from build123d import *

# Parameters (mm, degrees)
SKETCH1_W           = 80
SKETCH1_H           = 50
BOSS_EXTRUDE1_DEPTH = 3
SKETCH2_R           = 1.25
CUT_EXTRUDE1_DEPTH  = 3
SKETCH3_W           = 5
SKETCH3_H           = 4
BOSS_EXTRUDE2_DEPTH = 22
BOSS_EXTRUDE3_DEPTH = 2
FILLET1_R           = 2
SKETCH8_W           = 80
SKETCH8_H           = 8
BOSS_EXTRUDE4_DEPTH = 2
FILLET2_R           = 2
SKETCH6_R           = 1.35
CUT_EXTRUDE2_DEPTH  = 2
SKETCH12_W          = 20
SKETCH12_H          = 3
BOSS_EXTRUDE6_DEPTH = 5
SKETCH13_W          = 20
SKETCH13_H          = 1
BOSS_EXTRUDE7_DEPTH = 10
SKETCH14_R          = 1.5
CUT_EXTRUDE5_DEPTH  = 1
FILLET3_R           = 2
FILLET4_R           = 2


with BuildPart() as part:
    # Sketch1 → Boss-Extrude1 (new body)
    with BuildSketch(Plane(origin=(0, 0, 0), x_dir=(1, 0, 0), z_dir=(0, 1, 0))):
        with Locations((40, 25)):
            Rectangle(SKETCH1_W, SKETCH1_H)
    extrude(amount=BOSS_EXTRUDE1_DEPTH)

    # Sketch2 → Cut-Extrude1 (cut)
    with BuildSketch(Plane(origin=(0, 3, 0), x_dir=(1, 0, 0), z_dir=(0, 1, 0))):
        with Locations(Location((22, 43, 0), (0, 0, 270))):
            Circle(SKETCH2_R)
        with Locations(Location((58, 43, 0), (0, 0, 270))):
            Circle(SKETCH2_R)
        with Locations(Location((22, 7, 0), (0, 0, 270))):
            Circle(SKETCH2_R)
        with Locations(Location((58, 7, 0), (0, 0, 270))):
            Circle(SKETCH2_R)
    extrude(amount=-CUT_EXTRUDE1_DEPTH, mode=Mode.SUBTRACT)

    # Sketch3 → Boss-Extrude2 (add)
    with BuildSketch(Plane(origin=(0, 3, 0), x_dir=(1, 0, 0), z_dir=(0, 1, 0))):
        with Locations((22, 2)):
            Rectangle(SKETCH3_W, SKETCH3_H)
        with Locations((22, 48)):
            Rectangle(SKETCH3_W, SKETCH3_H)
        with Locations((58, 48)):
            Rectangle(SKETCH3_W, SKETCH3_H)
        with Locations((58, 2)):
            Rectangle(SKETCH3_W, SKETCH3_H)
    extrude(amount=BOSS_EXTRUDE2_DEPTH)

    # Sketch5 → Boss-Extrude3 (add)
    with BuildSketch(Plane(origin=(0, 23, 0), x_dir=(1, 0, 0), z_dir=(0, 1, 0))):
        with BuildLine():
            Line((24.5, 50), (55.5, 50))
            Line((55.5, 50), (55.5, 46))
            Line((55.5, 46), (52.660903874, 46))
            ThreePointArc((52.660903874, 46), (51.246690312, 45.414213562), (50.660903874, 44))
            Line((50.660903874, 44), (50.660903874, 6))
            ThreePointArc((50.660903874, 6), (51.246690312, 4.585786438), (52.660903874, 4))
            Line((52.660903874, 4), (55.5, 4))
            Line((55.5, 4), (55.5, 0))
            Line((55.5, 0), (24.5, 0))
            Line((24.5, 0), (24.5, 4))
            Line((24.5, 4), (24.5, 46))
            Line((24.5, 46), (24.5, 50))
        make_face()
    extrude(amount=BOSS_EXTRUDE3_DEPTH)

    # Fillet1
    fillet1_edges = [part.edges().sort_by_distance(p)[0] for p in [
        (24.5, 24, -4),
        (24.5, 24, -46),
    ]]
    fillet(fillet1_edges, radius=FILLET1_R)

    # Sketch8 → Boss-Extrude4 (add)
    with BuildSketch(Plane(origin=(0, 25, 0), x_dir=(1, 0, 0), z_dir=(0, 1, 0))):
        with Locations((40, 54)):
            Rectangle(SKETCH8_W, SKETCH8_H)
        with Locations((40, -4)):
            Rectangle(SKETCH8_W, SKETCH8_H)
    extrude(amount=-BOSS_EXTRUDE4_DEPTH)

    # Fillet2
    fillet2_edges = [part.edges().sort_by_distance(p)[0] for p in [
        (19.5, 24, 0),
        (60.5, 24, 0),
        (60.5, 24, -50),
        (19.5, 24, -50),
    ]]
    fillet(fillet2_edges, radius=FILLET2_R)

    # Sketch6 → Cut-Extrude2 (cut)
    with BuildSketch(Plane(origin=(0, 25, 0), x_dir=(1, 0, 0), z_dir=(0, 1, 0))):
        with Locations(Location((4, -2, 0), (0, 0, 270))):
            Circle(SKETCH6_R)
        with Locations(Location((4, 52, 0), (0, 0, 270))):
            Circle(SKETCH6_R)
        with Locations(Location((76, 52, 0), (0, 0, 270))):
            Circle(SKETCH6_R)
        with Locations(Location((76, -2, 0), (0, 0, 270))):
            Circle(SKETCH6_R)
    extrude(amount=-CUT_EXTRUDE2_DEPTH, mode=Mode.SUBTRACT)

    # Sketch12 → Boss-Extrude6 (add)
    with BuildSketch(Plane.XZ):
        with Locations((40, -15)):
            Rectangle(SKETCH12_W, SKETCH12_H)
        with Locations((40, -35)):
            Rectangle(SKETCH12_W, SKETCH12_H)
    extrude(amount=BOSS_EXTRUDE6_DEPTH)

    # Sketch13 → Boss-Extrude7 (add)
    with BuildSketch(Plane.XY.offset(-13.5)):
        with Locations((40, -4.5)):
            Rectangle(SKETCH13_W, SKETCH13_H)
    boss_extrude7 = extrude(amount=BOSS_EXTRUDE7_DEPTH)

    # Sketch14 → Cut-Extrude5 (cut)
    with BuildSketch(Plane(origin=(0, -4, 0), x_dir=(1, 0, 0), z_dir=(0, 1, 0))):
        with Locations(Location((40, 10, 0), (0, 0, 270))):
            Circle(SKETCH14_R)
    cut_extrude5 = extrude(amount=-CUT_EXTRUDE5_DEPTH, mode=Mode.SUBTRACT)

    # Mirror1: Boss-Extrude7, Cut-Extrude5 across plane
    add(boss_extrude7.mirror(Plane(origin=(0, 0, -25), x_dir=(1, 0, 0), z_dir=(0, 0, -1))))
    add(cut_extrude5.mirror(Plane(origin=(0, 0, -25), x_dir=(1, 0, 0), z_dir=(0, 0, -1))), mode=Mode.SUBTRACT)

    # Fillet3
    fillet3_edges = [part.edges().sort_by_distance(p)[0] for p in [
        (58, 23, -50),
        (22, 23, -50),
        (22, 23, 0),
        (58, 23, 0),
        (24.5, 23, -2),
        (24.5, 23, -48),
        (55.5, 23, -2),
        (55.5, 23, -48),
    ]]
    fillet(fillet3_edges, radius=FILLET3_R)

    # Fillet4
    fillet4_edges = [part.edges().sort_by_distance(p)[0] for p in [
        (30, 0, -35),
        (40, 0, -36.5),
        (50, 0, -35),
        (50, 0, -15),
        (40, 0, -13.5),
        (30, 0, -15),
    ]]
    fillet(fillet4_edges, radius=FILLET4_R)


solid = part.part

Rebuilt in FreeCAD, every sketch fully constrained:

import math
import FreeCAD as App
import Part
import Sketcher
from FreeCAD import Vector
Q = App.Units.Quantity


def edges_at(feature, points):
    """Names of the edges that pass closest to the given points."""
    edges = feature.Shape.Edges
    near = lambda p: min(range(len(edges)), key=lambda i: edges[i].distToShape(Part.Vertex(*p))[0])
    return sorted({f"Edge{near(p) + 1}" for p in points})

doc = App.newDocument("Part")
params = doc.addObject("Spreadsheet::Sheet", "Params")
for row, (alias, value) in enumerate([
    ("sketch1_width", "80 mm"),
    ("sketch1_height", "50 mm"),
    ("pad1_length", "3 mm"),
    ("sketch2_diameter", "2.5 mm"),
    ("pocket1_length", "3 mm"),
    ("sketch3_width", "5 mm"),
    ("sketch3_height", "4 mm"),
    ("pad2_length", "22 mm"),
    ("sketch4_radius", "2 mm"),
    ("sketch4_width", "31 mm"),
    ("sketch4_height", "50 mm"),
    ("sketch4_height2", "4 mm"),
    ("pad3_length", "2 mm"),
    ("fillet_radius", "2 mm"),
    ("sketch5_width", "80 mm"),
    ("sketch5_height", "8 mm"),
    ("pad4_length", "2 mm"),
    ("fillet2_radius", "2 mm"),
    ("sketch6_diameter", "2.7 mm"),
    ("pocket2_length", "2 mm"),
    ("sketch7_width", "20 mm"),
    ("sketch7_height", "3 mm"),
    ("pad5_length", "5 mm"),
    ("sketch8_width", "20 mm"),
    ("sketch8_height", "1 mm"),
    ("pad6_length", "10 mm"),
    ("sketch9_diameter", "3 mm"),
    ("pocket3_length", "1 mm"),
    ("fillet3_radius", "2 mm"),
    ("fillet4_radius", "2 mm"),
], start=1):
    params.set(f"A{row}", alias)
    params.set(f"B{row}", "=" + value)
    params.setAlias(f"B{row}", alias)

body = doc.addObject("PartDesign::Body", "Body")

sketch1 = body.newObject("Sketcher::SketchObject", "Sketch")
sketch1.AttachmentSupport = (doc.getObject("XZ_Plane"), [""])
sketch1.MapMode = "FlatFace"
sketch1.addGeometry([
    Part.LineSegment(Vector(0, -50, 0), Vector(0, 0, 0)),
    Part.LineSegment(Vector(0, 0, 0), Vector(80, 0, 0)),
    Part.LineSegment(Vector(80, 0, 0), Vector(80, -50, 0)),
    Part.LineSegment(Vector(80, -50, 0), Vector(0, -50, 0)),
], False)
sketch1.addConstraint([
    Sketcher.Constraint("Coincident", 0, 2, 1, 1),
    Sketcher.Constraint("Coincident", 1, 2, 2, 1),
    Sketcher.Constraint("Coincident", 2, 2, 3, 1),
    Sketcher.Constraint("Coincident", 3, 2, 0, 1),
    Sketcher.Constraint("Vertical", 0),
    Sketcher.Constraint("Horizontal", 1),
    Sketcher.Constraint("Vertical", 2),
    Sketcher.Constraint("Horizontal", 3),
    Sketcher.Constraint("Coincident", 0, 2, -1, 1),
    Sketcher.Constraint("DistanceX", 1, 1, 1, 2, Q("80 mm")),
    Sketcher.Constraint("DistanceY", 0, 1, 0, 2, Q("50 mm")),
])
sketch1.setExpression("Constraints[9]", "Params.sketch1_width")
sketch1.setExpression("Constraints[10]", "Params.sketch1_height")
pad1 = body.newObject("PartDesign::Pad", "Pad")
pad1.Profile = sketch1
pad1.setExpression("Length", "Params.pad1_length")
pad1.Reversed = True

sketch2 = body.newObject("Sketcher::SketchObject", "Sketch001")
sketch2.AttachmentSupport = (doc.getObject("XZ_Plane"), [""])
sketch2.MapMode = "FlatFace"
sketch2.AttachmentOffset = App.Placement(Vector(0, 0, -3), App.Rotation())
sketch2.addGeometry([
    Part.Circle(Vector(22, -43, 0), Vector(0, 0, 1), 1.25),
    Part.Circle(Vector(58, -43, 0), Vector(0, 0, 1), 1.25),
    Part.Circle(Vector(22, -7, 0), Vector(0, 0, 1), 1.25),
    Part.Circle(Vector(58, -7, 0), Vector(0, 0, 1), 1.25),
], False)
sketch2.addConstraint([
    Sketcher.Constraint("Equal", 0, 1),
    Sketcher.Constraint("Equal", 1, 2),
    Sketcher.Constraint("Equal", 2, 3),
    Sketcher.Constraint("Horizontal", 0, 3, 1, 3),
    Sketcher.Constraint("Horizontal", 2, 3, 3, 3),
    Sketcher.Constraint("Vertical", 0, 3, 2, 3),
    Sketcher.Constraint("Vertical", 1, 3, 3, 3),
    Sketcher.Constraint("Diameter", 0, Q("2.5 mm")),
    Sketcher.Constraint("DistanceX", -1, 1, 0, 3, Q("22 mm")),
    Sketcher.Constraint("DistanceY", 0, 3, -1, 1, Q("43 mm")),
    Sketcher.Constraint("DistanceX", -1, 1, 1, 3, Q("58 mm")),
    Sketcher.Constraint("DistanceY", 2, 3, -1, 1, Q("7 mm")),
])
sketch2.setExpression("Constraints[7]", "Params.sketch2_diameter")
pocket1 = body.newObject("PartDesign::Pocket", "Pocket")
pocket1.Profile = sketch2
pocket1.setExpression("Length", "Params.pocket1_length")
pocket1.Reversed = True

sketch3 = body.newObject("Sketcher::SketchObject", "Sketch002")
sketch3.AttachmentSupport = (doc.getObject("XZ_Plane"), [""])
sketch3.MapMode = "FlatFace"
sketch3.AttachmentOffset = App.Placement(Vector(0, 0, -3), App.Rotation())
sketch3.addGeometry([
    Part.LineSegment(Vector(19.5, -4, 0), Vector(19.5, 0, 0)),
    Part.LineSegment(Vector(19.5, 0, 0), Vector(24.5, 0, 0)),
    Part.LineSegment(Vector(24.5, 0, 0), Vector(24.5, -4, 0)),
    Part.LineSegment(Vector(24.5, -4, 0), Vector(19.5, -4, 0)),
    Part.LineSegment(Vector(19.5, -50, 0), Vector(19.5, -46, 0)),
    Part.LineSegment(Vector(19.5, -46, 0), Vector(24.5, -46, 0)),
    Part.LineSegment(Vector(24.5, -46, 0), Vector(24.5, -50, 0)),
    Part.LineSegment(Vector(24.5, -50, 0), Vector(19.5, -50, 0)),
    Part.LineSegment(Vector(55.5, -50, 0), Vector(55.5, -46, 0)),
    Part.LineSegment(Vector(55.5, -46, 0), Vector(60.5, -46, 0)),
    Part.LineSegment(Vector(60.5, -46, 0), Vector(60.5, -50, 0)),
    Part.LineSegment(Vector(60.5, -50, 0), Vector(55.5, -50, 0)),
    Part.LineSegment(Vector(55.5, -4, 0), Vector(55.5, 0, 0)),
    Part.LineSegment(Vector(55.5, 0, 0), Vector(60.5, 0, 0)),
    Part.LineSegment(Vector(60.5, 0, 0), Vector(60.5, -4, 0)),
    Part.LineSegment(Vector(60.5, -4, 0), Vector(55.5, -4, 0)),
], False)
sketch3.addConstraint([
    Sketcher.Constraint("Coincident", 0, 2, 1, 1),
    Sketcher.Constraint("Coincident", 1, 2, 2, 1),
    Sketcher.Constraint("Coincident", 2, 2, 3, 1),
    Sketcher.Constraint("Coincident", 3, 2, 0, 1),
    Sketcher.Constraint("Coincident", 4, 2, 5, 1),
    Sketcher.Constraint("Coincident", 5, 2, 6, 1),
    Sketcher.Constraint("Coincident", 6, 2, 7, 1),
    Sketcher.Constraint("Coincident", 7, 2, 4, 1),
    Sketcher.Constraint("Coincident", 8, 2, 9, 1),
    Sketcher.Constraint("Coincident", 9, 2, 10, 1),
    Sketcher.Constraint("Coincident", 10, 2, 11, 1),
    Sketcher.Constraint("Coincident", 11, 2, 8, 1),
    Sketcher.Constraint("Coincident", 12, 2, 13, 1),
    Sketcher.Constraint("Coincident", 13, 2, 14, 1),
    Sketcher.Constraint("Coincident", 14, 2, 15, 1),
    Sketcher.Constraint("Coincident", 15, 2, 12, 1),
    Sketcher.Constraint("Vertical", 0),
    Sketcher.Constraint("Horizontal", 1),
    Sketcher.Constraint("Vertical", 2),
    Sketcher.Constraint("Horizontal", 3),
    Sketcher.Constraint("Vertical", 4),
    Sketcher.Constraint("Horizontal", 5),
    Sketcher.Constraint("Vertical", 6),
    Sketcher.Constraint("Horizontal", 7),
    Sketcher.Constraint("Vertical", 8),
    Sketcher.Constraint("Horizontal", 9),
    Sketcher.Constraint("Vertical", 10),
    Sketcher.Constraint("Horizontal", 11),
    Sketcher.Constraint("Vertical", 12),
    Sketcher.Constraint("Horizontal", 13),
    Sketcher.Constraint("Vertical", 14),
    Sketcher.Constraint("Horizontal", 15),
    Sketcher.Constraint("PointOnObject", 0, 2, -1),
    Sketcher.Constraint("PointOnObject", 12, 2, -1),
    Sketcher.Constraint("Horizontal", 5, 2, 8, 2),
    Sketcher.Constraint("Horizontal", 7, 2, 10, 2),
    Sketcher.Constraint("Horizontal", 3, 2, 14, 2),
    Sketcher.Constraint("Vertical", 3, 2, 4, 2),
    Sketcher.Constraint("Vertical", 2, 2, 5, 2),
    Sketcher.Constraint("Vertical", 11, 2, 12, 2),
    Sketcher.Constraint("Vertical", 10, 2, 13, 2),
    Sketcher.Constraint("Equal", 7, 9),
    Sketcher.Constraint("Equal", 2, 4),
    Sketcher.Constraint("DistanceX", 1, 1, 1, 2, Q("5 mm")),
    Sketcher.Constraint("DistanceY", 0, 1, 0, 2, Q("4 mm")),
    Sketcher.Constraint("DistanceY", 4, 2, -1, 1, Q("46 mm")),
    Sketcher.Constraint("DistanceX", 5, 2, 8, 2, Q("31 mm")),
    Sketcher.Constraint("DistanceX", -1, 1, 0, 2, Q("19.5 mm")),
])
sketch3.setExpression("Constraints[43]", "Params.sketch3_width")
sketch3.setExpression("Constraints[44]", "Params.sketch3_height")
pad2 = body.newObject("PartDesign::Pad", "Pad001")
pad2.Profile = sketch3
pad2.setExpression("Length", "Params.pad2_length")
pad2.Reversed = True

sketch4 = body.newObject("Sketcher::SketchObject", "Sketch003")
sketch4.AttachmentSupport = (doc.getObject("XZ_Plane"), [""])
sketch4.MapMode = "FlatFace"
sketch4.AttachmentOffset = App.Placement(Vector(0, 0, -23), App.Rotation())
sketch4.addGeometry([
    Part.LineSegment(Vector(55.5, -50, 0), Vector(24.5, -50, 0)),
    Part.LineSegment(Vector(24.5, -50, 0), Vector(24.5, 0, 0)),
    Part.LineSegment(Vector(24.5, 0, 0), Vector(55.5, 0, 0)),
    Part.LineSegment(Vector(55.5, 0, 0), Vector(55.5, -4, 0)),
    Part.LineSegment(Vector(55.5, -4, 0), Vector(52.660904, -4, 0)),
    Part.ArcOfCircle(Part.Circle(Vector(52.660904, -6, 0), Vector(0, 0, 1), 2), math.radians(90), math.radians(180)),
    Part.LineSegment(Vector(50.660904, -6, 0), Vector(50.660904, -44, 0)),
    Part.ArcOfCircle(Part.Circle(Vector(52.660904, -44, 0), Vector(0, 0, 1), 2), math.radians(-180), math.radians(-90)),
    Part.LineSegment(Vector(52.660904, -46, 0), Vector(55.5, -46, 0)),
    Part.LineSegment(Vector(55.5, -46, 0), Vector(55.5, -50, 0)),
], False)
sketch4.addConstraint([
    Sketcher.Constraint("Coincident", 0, 2, 1, 1),
    Sketcher.Constraint("Coincident", 1, 2, 2, 1),
    Sketcher.Constraint("Coincident", 2, 2, 3, 1),
    Sketcher.Constraint("Coincident", 3, 2, 4, 1),
    Sketcher.Constraint("Tangent", 4, 2, 5, 1),
    Sketcher.Constraint("Tangent", 5, 2, 6, 1),
    Sketcher.Constraint("Tangent", 6, 2, 7, 1),
    Sketcher.Constraint("Tangent", 7, 2, 8, 1),
    Sketcher.Constraint("Coincident", 8, 2, 9, 1),
    Sketcher.Constraint("Coincident", 9, 2, 0, 1),
    Sketcher.Constraint("Horizontal", 0),
    Sketcher.Constraint("Vertical", 1),
    Sketcher.Constraint("Horizontal", 2),
    Sketcher.Constraint("Vertical", 3),
    Sketcher.Constraint("Horizontal", 4),
    Sketcher.Constraint("Vertical", 6),
    Sketcher.Constraint("Horizontal", 8),
    Sketcher.Constraint("Vertical", 9),
    Sketcher.Constraint("Equal", 5, 7),
    Sketcher.Constraint("PointOnObject", 1, 2, -1),
    Sketcher.Constraint("Vertical", 3, 2, 8, 2),
    Sketcher.Constraint("Equal", 3, 9),
    Sketcher.Constraint("Radius", 5, Q("2 mm")),
    Sketcher.Constraint("DistanceX", 0, 2, 0, 1, Q("31 mm")),
    Sketcher.Constraint("DistanceY", 1, 1, 1, 2, Q("50 mm")),
    Sketcher.Constraint("DistanceY", 3, 2, 3, 1, Q("4 mm")),
    Sketcher.Constraint("DistanceX", -1, 1, 0, 2, Q("24.5 mm")),
    Sketcher.Constraint("DistanceX", 4, 2, 4, 1, Q("2.839096 mm")),
])
sketch4.setExpression("Constraints[22]", "Params.sketch4_radius")
sketch4.setExpression("Constraints[23]", "Params.sketch4_width")
sketch4.setExpression("Constraints[24]", "Params.sketch4_height")
sketch4.setExpression("Constraints[25]", "Params.sketch4_height2")
pad3 = body.newObject("PartDesign::Pad", "Pad002")
pad3.Profile = sketch4
pad3.setExpression("Length", "Params.pad3_length")
pad3.Reversed = True
doc.recompute()

fillet = body.newObject("PartDesign::Fillet", "Fillet")
fillet.Base = (pad3, edges_at(pad3, [(24.5, 24, -4), (24.5, 24, -46)]))
fillet.setExpression("Radius", "Params.fillet_radius")

sketch5 = body.newObject("Sketcher::SketchObject", "Sketch004")
sketch5.AttachmentSupport = (doc.getObject("XZ_Plane"), [""])
sketch5.MapMode = "FlatFace"
sketch5.AttachmentOffset = App.Placement(Vector(0, 0, -25), App.Rotation())
sketch5.addGeometry([
    Part.LineSegment(Vector(0, -58, 0), Vector(0, -50, 0)),
    Part.LineSegment(Vector(0, -50, 0), Vector(80, -50, 0)),
    Part.LineSegment(Vector(80, -50, 0), Vector(80, -58, 0)),
    Part.LineSegment(Vector(80, -58, 0), Vector(0, -58, 0)),
    Part.LineSegment(Vector(0, 0, 0), Vector(0, 8, 0)),
    Part.LineSegment(Vector(0, 8, 0), Vector(80, 8, 0)),
    Part.LineSegment(Vector(80, 8, 0), Vector(80, 0, 0)),
    Part.LineSegment(Vector(80, 0, 0), Vector(0, 0, 0)),
], False)
sketch5.addConstraint([
    Sketcher.Constraint("Coincident", 0, 2, 1, 1),
    Sketcher.Constraint("Coincident", 1, 2, 2, 1),
    Sketcher.Constraint("Coincident", 2, 2, 3, 1),
    Sketcher.Constraint("Coincident", 3, 2, 0, 1),
    Sketcher.Constraint("Coincident", 4, 2, 5, 1),
    Sketcher.Constraint("Coincident", 5, 2, 6, 1),
    Sketcher.Constraint("Coincident", 6, 2, 7, 1),
    Sketcher.Constraint("Coincident", 7, 2, 4, 1),
    Sketcher.Constraint("Vertical", 0),
    Sketcher.Constraint("Horizontal", 1),
    Sketcher.Constraint("Vertical", 2),
    Sketcher.Constraint("Horizontal", 3),
    Sketcher.Constraint("Vertical", 4),
    Sketcher.Constraint("Horizontal", 5),
    Sketcher.Constraint("Vertical", 6),
    Sketcher.Constraint("Horizontal", 7),
    Sketcher.Constraint("Coincident", 7, 2, -1, 1),
    Sketcher.Constraint("PointOnObject", 0, 2, -2),
    Sketcher.Constraint("Vertical", 2, 2, 5, 2),
    Sketcher.Constraint("Equal", 2, 4),
    Sketcher.Constraint("DistanceX", 1, 1, 1, 2, Q("80 mm")),
    Sketcher.Constraint("DistanceY", 0, 1, 0, 2, Q("8 mm")),
    Sketcher.Constraint("DistanceY", 0, 2, -1, 1, Q("50 mm")),
])
sketch5.setExpression("Constraints[20]", "Params.sketch5_width")
sketch5.setExpression("Constraints[21]", "Params.sketch5_height")
pad4 = body.newObject("PartDesign::Pad", "Pad003")
pad4.Profile = sketch5
pad4.setExpression("Length", "Params.pad4_length")
doc.recompute()

fillet2 = body.newObject("PartDesign::Fillet", "Fillet001")
fillet2.Base = (pad4, edges_at(pad4, [
    (19.5, 24, 0),
    (60.5, 24, 0),
    (60.5, 24, -50),
    (19.5, 24, -50),
]))
fillet2.setExpression("Radius", "Params.fillet2_radius")

sketch6 = body.newObject("Sketcher::SketchObject", "Sketch005")
sketch6.AttachmentSupport = (doc.getObject("XZ_Plane"), [""])
sketch6.MapMode = "FlatFace"
sketch6.AttachmentOffset = App.Placement(Vector(0, 0, -25), App.Rotation())
sketch6.addGeometry([
    Part.Circle(Vector(4, 2, 0), Vector(0, 0, 1), 1.35),
    Part.Circle(Vector(4, -52, 0), Vector(0, 0, 1), 1.35),
    Part.Circle(Vector(76, -52, 0), Vector(0, 0, 1), 1.35),
    Part.Circle(Vector(76, 2, 0), Vector(0, 0, 1), 1.35),
], False)
sketch6.addConstraint([
    Sketcher.Constraint("Equal", 0, 1),
    Sketcher.Constraint("Equal", 1, 2),
    Sketcher.Constraint("Equal", 2, 3),
    Sketcher.Constraint("Horizontal", 1, 3, 2, 3),
    Sketcher.Constraint("Horizontal", 0, 3, 3, 3),
    Sketcher.Constraint("Vertical", 0, 3, 1, 3),
    Sketcher.Constraint("Vertical", 2, 3, 3, 3),
    Sketcher.Constraint("Diameter", 0, Q("2.7 mm")),
    Sketcher.Constraint("DistanceX", -1, 1, 0, 3, Q("4 mm")),
    Sketcher.Constraint("DistanceY", -1, 1, 0, 3, Q("2 mm")),
    Sketcher.Constraint("DistanceY", 1, 3, -1, 1, Q("52 mm")),
    Sketcher.Constraint("DistanceX", -1, 1, 2, 3, Q("76 mm")),
])
sketch6.setExpression("Constraints[7]", "Params.sketch6_diameter")
pocket2 = body.newObject("PartDesign::Pocket", "Pocket001")
pocket2.Profile = sketch6
pocket2.setExpression("Length", "Params.pocket2_length")
pocket2.Reversed = True

sketch7 = body.newObject("Sketcher::SketchObject", "Sketch006")
sketch7.AttachmentSupport = (doc.getObject("XZ_Plane"), [""])
sketch7.MapMode = "FlatFace"
sketch7.addGeometry([
    Part.LineSegment(Vector(30, -13.5, 0), Vector(30, -16.5, 0)),
    Part.LineSegment(Vector(30, -16.5, 0), Vector(50, -16.5, 0)),
    Part.LineSegment(Vector(50, -16.5, 0), Vector(50, -13.5, 0)),
    Part.LineSegment(Vector(50, -13.5, 0), Vector(30, -13.5, 0)),
    Part.LineSegment(Vector(30, -33.5, 0), Vector(30, -36.5, 0)),
    Part.LineSegment(Vector(30, -36.5, 0), Vector(50, -36.5, 0)),
    Part.LineSegment(Vector(50, -36.5, 0), Vector(50, -33.5, 0)),
    Part.LineSegment(Vector(50, -33.5, 0), Vector(30, -33.5, 0)),
], False)
sketch7.addConstraint([
    Sketcher.Constraint("Coincident", 0, 2, 1, 1),
    Sketcher.Constraint("Coincident", 1, 2, 2, 1),
    Sketcher.Constraint("Coincident", 2, 2, 3, 1),
    Sketcher.Constraint("Coincident", 3, 2, 0, 1),
    Sketcher.Constraint("Coincident", 4, 2, 5, 1),
    Sketcher.Constraint("Coincident", 5, 2, 6, 1),
    Sketcher.Constraint("Coincident", 6, 2, 7, 1),
    Sketcher.Constraint("Coincident", 7, 2, 4, 1),
    Sketcher.Constraint("Vertical", 0),
    Sketcher.Constraint("Horizontal", 1),
    Sketcher.Constraint("Vertical", 2),
    Sketcher.Constraint("Horizontal", 3),
    Sketcher.Constraint("Vertical", 4),
    Sketcher.Constraint("Horizontal", 5),
    Sketcher.Constraint("Vertical", 6),
    Sketcher.Constraint("Horizontal", 7),
    Sketcher.Constraint("Vertical", 3, 2, 4, 2),
    Sketcher.Constraint("Vertical", 2, 2, 5, 2),
    Sketcher.Constraint("Equal", 2, 4),
    Sketcher.Constraint("DistanceX", 1, 1, 1, 2, Q("20 mm")),
    Sketcher.Constraint("DistanceY", 0, 2, 0, 1, Q("3 mm")),
    Sketcher.Constraint("DistanceX", -1, 1, 0, 2, Q("30 mm")),
    Sketcher.Constraint("DistanceY", 4, 2, 0, 2, Q("20 mm")),
    Sketcher.Constraint("DistanceY", 0, 2, -1, 1, Q("16.5 mm")),
])
sketch7.setExpression("Constraints[19]", "Params.sketch7_width")
sketch7.setExpression("Constraints[20]", "Params.sketch7_height")
pad5 = body.newObject("PartDesign::Pad", "Pad004")
pad5.Profile = sketch7
pad5.setExpression("Length", "Params.pad5_length")

sketch8 = body.newObject("Sketcher::SketchObject", "Sketch007")
sketch8.AttachmentSupport = (doc.getObject("XY_Plane"), [""])
sketch8.MapMode = "FlatFace"
sketch8.AttachmentOffset = App.Placement(Vector(0, 0, -13.5), App.Rotation())
sketch8.addGeometry([
    Part.LineSegment(Vector(30, -4, 0), Vector(30, -5, 0)),
    Part.LineSegment(Vector(30, -5, 0), Vector(50, -5, 0)),
    Part.LineSegment(Vector(50, -5, 0), Vector(50, -4, 0)),
    Part.LineSegment(Vector(50, -4, 0), Vector(30, -4, 0)),
], False)
sketch8.addConstraint([
    Sketcher.Constraint("Coincident", 0, 2, 1, 1),
    Sketcher.Constraint("Coincident", 1, 2, 2, 1),
    Sketcher.Constraint("Coincident", 2, 2, 3, 1),
    Sketcher.Constraint("Coincident", 3, 2, 0, 1),
    Sketcher.Constraint("Vertical", 0),
    Sketcher.Constraint("Horizontal", 1),
    Sketcher.Constraint("Vertical", 2),
    Sketcher.Constraint("Horizontal", 3),
    Sketcher.Constraint("DistanceX", 1, 1, 1, 2, Q("20 mm")),
    Sketcher.Constraint("DistanceY", 0, 2, 0, 1, Q("1 mm")),
    Sketcher.Constraint("DistanceX", -1, 1, 0, 2, Q("30 mm")),
    Sketcher.Constraint("DistanceY", 0, 2, -1, 1, Q("5 mm")),
])
sketch8.setExpression("Constraints[8]", "Params.sketch8_width")
sketch8.setExpression("Constraints[9]", "Params.sketch8_height")
pad6 = body.newObject("PartDesign::Pad", "Pad005")
pad6.Profile = sketch8
pad6.setExpression("Length", "Params.pad6_length")

sketch9 = body.newObject("Sketcher::SketchObject", "Sketch008")
sketch9.AttachmentSupport = (doc.getObject("XZ_Plane"), [""])
sketch9.MapMode = "FlatFace"
sketch9.AttachmentOffset = App.Placement(Vector(0, 0, 4), App.Rotation())
sketch9.addGeometry(Part.Circle(Vector(40, -10, 0), Vector(0, 0, 1), 1.5), False)
sketch9.addConstraint([
    Sketcher.Constraint("Diameter", 0, Q("3 mm")),
    Sketcher.Constraint("DistanceX", -1, 1, 0, 3, Q("40 mm")),
    Sketcher.Constraint("DistanceY", 0, 3, -1, 1, Q("10 mm")),
])
sketch9.setExpression("Constraints[0]", "Params.sketch9_diameter")
pocket3 = body.newObject("PartDesign::Pocket", "Pocket002")
pocket3.Profile = sketch9
pocket3.setExpression("Length", "Params.pocket3_length")
pocket3.Reversed = True
doc.recompute()

datumplane = body.newObject("PartDesign::Plane", "DatumPlane")
datumplane.AttachmentSupport = (doc.getObject("XY_Plane"), [""])
datumplane.MapMode = "FlatFace"
datumplane.AttachmentOffset = App.Placement(Vector(0, 0, -25), App.Rotation())
mirrored = body.newObject("PartDesign::Mirrored", "Mirrored")
mirrored.Originals = [pad6, pocket3]
mirrored.MirrorPlane = (datumplane, [""])
body.Tip = mirrored
doc.recompute()

fillet3 = body.newObject("PartDesign::Fillet", "Fillet002")
fillet3.Base = (mirrored, edges_at(mirrored, [
    (58, 23, -50),
    (22, 23, -50),
    (22, 23, 0),
    (58, 23, 0),
    (24.5, 23, -2),
    (24.5, 23, -48),
    (55.5, 23, -2),
    (55.5, 23, -48),
]))
fillet3.setExpression("Radius", "Params.fillet3_radius")
doc.recompute()

fillet4 = body.newObject("PartDesign::Fillet", "Fillet003")
fillet4.Base = (fillet3, edges_at(fillet3, [
    (30, 0, -35),
    (40, 0, -36.5),
    (50, 0, -35),
    (50, 0, -15),
    (40, 0, -13.5),
    (30, 0, -15),
]))
fillet4.setExpression("Radius", "Params.fillet4_radius")

doc.recompute()
